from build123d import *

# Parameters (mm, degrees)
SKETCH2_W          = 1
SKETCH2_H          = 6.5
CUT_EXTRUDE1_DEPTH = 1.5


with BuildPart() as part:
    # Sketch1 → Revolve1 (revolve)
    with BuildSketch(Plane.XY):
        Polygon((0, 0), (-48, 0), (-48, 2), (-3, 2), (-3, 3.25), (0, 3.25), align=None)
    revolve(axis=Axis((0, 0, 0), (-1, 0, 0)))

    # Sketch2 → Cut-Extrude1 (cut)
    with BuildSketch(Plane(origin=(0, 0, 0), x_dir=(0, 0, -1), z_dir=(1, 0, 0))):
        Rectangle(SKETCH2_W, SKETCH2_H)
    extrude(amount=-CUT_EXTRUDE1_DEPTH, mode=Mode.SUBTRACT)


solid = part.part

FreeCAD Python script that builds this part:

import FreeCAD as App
import Part
import Sketcher
from FreeCAD import Vector

doc = App.newDocument("Part")
body = doc.addObject("PartDesign::Body", "Body")

# Sketch on XY plane
sketch1 = doc.addObject("Sketcher::SketchObject", "Sketch")
body.addObject(sketch1)
sketch1.AttachmentSupport = (doc.XY_Plane, [""])
sketch1.MapMode = "FlatFace"
sketch1.addGeometry(Part.LineSegment(Vector(-48, 0, 0), Vector(0, 0, 0)), False)
sketch1.addGeometry(Part.LineSegment(Vector(0, 0, 0), Vector(0, 3.2, 0)), False)
sketch1.addGeometry(Part.LineSegment(Vector(0, 3.2, 0), Vector(-3, 3.2, 0)), False)
sketch1.addGeometry(Part.LineSegment(Vector(-3, 3.2, 0), Vector(-3, 2, 0)), False)
sketch1.addGeometry(Part.LineSegment(Vector(-3, 2, 0), Vector(-48, 2, 0)), False)
sketch1.addGeometry(Part.LineSegment(Vector(-48, 2, 0), Vector(-48, 0, 0)), False)
sketch1.addConstraint(Sketcher.Constraint("Coincident", 0, 2, 1, 1))
sketch1.addConstraint(Sketcher.Constraint("Coincident", 1, 2, 2, 1))
sketch1.addConstraint(Sketcher.Constraint("Coincident", 2, 2, 3, 1))
sketch1.addConstraint(Sketcher.Constraint("Coincident", 3, 2, 4, 1))
sketch1.addConstraint(Sketcher.Constraint("Coincident", 4, 2, 5, 1))
sketch1.addConstraint(Sketcher.Constraint("Coincident", 5, 2, 0, 1))
sketch1.addConstraint(Sketcher.Constraint("Horizontal", 0))
sketch1.addConstraint(Sketcher.Constraint("Vertical", 1))
sketch1.addConstraint(Sketcher.Constraint("Horizontal", 2))
sketch1.addConstraint(Sketcher.Constraint("Vertical", 3))
sketch1.addConstraint(Sketcher.Constraint("Horizontal", 4))
sketch1.addConstraint(Sketcher.Constraint("Vertical", 5))
sketch1.addConstraint(Sketcher.Constraint("Coincident", 0, 2, -1, 1))
sketch1.addConstraint(Sketcher.Constraint("DistanceX", 0, 1, 0, 2, 48.0))
sketch1.addConstraint(Sketcher.Constraint("DistanceX", 2, 2, 2, 1, 3.0))
sketch1.addConstraint(Sketcher.Constraint("DistanceY", 5, 2, 5, 1, 2.0))
sketch1.addConstraint(Sketcher.Constraint("DistanceY", 1, 1, 1, 2, 3.25))
revolution = doc.addObject("PartDesign::Revolution", "Revolution")
body.addObject(revolution)
revolution.Profile = sketch1
revolution.ReferenceAxis = (sketch1, ["H_Axis"])
revolution.Angle = 360

# Sketch on YZ plane
sketch2 = doc.addObject("Sketcher::SketchObject", "Sketch001")
body.addObject(sketch2)
sketch2.AttachmentSupport = (doc.YZ_Plane, [""])
sketch2.MapMode = "FlatFace"
sketch2.addGeometry(Part.LineSegment(Vector(3.2, 0.5, 0), Vector(-3.2, 0.5, 0)), False)
sketch2.addGeometry(Part.LineSegment(Vector(-3.2, 0.5, 0), Vector(-3.2, -0.5, 0)), False)
sketch2.addGeometry(Part.LineSegment(Vector(-3.2, -0.5, 0), Vector(3.2, -0.5, 0)), False)
sketch2.addGeometry(Part.LineSegment(Vector(3.2, -0.5, 0), Vector(3.2, 0.5, 0)), False)
sketch2.addConstraint(Sketcher.Constraint("Coincident", 0, 2, 1, 1))
sketch2.addConstraint(Sketcher.Constraint("Coincident", 1, 2, 2, 1))
sketch2.addConstraint(Sketcher.Constraint("Coincident", 2, 2, 3, 1))
sketch2.addConstraint(Sketcher.Constraint("Coincident", 3, 2, 0, 1))
sketch2.addConstraint(Sketcher.Constraint("Horizontal", 0))
sketch2.addConstraint(Sketcher.Constraint("Vertical", 1))
sketch2.addConstraint(Sketcher.Constraint("Horizontal", 2))
sketch2.addConstraint(Sketcher.Constraint("Vertical", 3))
sketch2.addConstraint(Sketcher.Constraint("Symmetric", 0, 2, 2, 2, -1, 1))
sketch2.addConstraint(Sketcher.Constraint("DistanceY", 1, 2, 1, 1, 1.0))
sketch2.addConstraint(Sketcher.Constraint("DistanceX", 0, 2, 0, 1, 6.5))
pocket1 = doc.addObject("PartDesign::Pocket", "Pocket")
body.addObject(pocket1)
pocket1.Profile = sketch2
pocket1.Length = 1.5

doc.recompute()
